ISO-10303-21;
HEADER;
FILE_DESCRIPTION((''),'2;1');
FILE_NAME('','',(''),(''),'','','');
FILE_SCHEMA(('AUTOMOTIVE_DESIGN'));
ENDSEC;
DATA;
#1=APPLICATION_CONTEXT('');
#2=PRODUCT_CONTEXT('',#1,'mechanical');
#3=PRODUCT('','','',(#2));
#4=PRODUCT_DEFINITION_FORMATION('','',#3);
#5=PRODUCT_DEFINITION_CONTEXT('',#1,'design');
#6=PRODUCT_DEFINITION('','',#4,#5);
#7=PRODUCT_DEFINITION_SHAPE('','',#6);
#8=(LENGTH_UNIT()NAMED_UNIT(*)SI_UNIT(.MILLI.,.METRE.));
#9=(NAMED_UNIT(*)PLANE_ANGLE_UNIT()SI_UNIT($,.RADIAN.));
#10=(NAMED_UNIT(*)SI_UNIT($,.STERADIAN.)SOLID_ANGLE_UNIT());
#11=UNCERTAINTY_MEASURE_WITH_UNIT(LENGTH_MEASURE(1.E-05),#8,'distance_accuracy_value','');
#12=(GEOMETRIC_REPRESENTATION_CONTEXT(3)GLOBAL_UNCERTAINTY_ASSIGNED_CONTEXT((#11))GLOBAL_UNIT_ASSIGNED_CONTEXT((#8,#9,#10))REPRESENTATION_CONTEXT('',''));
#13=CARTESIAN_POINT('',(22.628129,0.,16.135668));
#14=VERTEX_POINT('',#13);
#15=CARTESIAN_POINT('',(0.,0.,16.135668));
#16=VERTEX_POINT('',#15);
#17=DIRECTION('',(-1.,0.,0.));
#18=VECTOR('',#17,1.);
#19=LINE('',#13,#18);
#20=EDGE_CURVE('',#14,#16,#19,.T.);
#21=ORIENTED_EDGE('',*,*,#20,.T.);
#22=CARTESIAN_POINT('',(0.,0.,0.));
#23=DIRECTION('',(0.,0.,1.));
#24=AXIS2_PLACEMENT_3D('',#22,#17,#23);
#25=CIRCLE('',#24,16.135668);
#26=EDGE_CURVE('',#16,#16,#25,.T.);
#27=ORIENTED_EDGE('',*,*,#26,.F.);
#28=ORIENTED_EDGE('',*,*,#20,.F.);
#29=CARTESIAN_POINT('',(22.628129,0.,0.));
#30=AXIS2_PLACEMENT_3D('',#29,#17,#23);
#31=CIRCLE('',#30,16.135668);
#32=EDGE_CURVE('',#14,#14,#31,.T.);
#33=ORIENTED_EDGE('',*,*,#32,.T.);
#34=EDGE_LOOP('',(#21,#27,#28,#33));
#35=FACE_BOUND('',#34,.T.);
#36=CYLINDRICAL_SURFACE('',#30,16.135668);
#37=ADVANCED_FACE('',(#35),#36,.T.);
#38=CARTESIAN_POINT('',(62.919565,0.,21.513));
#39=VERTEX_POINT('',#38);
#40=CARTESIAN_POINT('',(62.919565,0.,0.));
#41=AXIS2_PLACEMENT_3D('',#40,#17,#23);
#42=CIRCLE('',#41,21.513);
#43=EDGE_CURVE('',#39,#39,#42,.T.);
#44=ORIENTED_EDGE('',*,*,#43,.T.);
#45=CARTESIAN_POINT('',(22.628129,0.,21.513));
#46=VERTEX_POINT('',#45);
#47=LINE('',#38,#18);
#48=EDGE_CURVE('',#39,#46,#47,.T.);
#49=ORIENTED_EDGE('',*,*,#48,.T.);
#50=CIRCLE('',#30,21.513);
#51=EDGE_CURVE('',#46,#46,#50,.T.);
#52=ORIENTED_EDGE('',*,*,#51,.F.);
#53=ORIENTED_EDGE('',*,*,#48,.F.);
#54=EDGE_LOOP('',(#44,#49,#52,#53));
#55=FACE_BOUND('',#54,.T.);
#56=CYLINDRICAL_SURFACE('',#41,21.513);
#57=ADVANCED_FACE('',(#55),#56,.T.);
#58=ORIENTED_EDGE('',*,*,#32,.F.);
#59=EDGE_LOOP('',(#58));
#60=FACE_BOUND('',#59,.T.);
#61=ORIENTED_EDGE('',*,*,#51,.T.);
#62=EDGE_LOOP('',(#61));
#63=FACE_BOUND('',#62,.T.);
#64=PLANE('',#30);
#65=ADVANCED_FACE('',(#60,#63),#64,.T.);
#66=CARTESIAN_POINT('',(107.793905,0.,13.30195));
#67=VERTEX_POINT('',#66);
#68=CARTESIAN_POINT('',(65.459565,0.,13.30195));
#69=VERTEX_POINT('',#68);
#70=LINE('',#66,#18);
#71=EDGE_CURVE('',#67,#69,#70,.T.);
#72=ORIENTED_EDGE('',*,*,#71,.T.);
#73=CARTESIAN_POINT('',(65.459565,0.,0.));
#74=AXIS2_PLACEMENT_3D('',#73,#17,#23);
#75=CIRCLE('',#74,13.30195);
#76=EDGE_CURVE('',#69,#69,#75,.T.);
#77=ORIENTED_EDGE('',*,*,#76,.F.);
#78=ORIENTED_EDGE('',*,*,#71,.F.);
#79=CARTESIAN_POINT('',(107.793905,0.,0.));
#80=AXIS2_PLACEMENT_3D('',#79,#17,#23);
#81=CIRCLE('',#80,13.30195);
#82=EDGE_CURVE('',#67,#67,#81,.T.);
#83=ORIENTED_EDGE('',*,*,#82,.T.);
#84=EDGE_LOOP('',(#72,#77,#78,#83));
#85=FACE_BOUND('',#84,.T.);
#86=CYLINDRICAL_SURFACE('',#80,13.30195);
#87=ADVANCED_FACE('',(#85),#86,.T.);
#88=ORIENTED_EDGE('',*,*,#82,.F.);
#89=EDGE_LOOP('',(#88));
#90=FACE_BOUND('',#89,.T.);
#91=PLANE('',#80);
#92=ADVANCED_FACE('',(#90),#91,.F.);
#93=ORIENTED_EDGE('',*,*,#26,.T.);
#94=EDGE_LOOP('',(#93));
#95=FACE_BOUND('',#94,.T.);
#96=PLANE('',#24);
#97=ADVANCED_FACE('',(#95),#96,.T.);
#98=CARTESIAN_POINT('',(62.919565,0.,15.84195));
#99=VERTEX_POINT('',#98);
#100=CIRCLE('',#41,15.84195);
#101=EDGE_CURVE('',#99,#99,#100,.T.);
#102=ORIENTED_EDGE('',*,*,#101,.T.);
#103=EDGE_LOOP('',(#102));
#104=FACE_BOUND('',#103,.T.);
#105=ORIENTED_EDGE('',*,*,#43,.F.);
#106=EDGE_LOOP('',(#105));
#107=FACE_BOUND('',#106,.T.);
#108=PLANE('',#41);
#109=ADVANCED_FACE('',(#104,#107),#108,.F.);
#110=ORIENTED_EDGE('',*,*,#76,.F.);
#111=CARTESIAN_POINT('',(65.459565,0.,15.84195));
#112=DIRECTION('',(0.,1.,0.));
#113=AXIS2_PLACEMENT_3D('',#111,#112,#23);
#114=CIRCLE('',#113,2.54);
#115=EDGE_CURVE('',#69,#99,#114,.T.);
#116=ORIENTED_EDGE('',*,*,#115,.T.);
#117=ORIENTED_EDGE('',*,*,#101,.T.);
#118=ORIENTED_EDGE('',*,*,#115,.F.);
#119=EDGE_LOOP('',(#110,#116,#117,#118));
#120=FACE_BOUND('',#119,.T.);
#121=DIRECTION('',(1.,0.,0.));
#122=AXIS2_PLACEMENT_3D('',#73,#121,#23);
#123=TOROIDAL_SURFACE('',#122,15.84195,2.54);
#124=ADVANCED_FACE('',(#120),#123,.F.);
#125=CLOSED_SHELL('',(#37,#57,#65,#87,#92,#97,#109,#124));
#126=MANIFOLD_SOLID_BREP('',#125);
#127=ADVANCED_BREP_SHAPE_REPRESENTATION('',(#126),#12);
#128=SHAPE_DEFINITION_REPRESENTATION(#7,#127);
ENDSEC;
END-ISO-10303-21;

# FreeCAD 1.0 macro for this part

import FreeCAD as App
import Part
import Sketcher
Q = App.Units.Quantity


def edges_at(feature, points):
    """Names of the edges that pass closest to the given points."""
    edges = feature.Shape.Edges
    near = lambda p: min(range(len(edges)), key=lambda i: edges[i].distToShape(Part.Vertex(*p))[0])
    return sorted({f"Edge{near(p) + 1}" for p in points})


def add_polygon(sketch, points):
    """Adds a closed chain of lines whose ends are joined by coincident constraints."""
    first, n = sketch.GeometryCount, len(points)
    for a, b in zip(points, points[1:] + points[:1]):
        sketch.addGeometry(Part.LineSegment(App.Vector(*a, 0), App.Vector(*b, 0)), False)
    for i in range(n):
        sketch.addConstraint(Sketcher.Constraint("Coincident", first + i, 2, first + (i + 1) % n, 1))

doc = App.newDocument("Part")
params = doc.addObject("Spreadsheet::Sheet", "Params")
for row, (alias, value) in enumerate([
    ("revolution_angle", "360 deg"),
    ("fillet_radius", "0.1 in"),
], start=1):
    params.set(f"A{row}", alias)
    params.set(f"B{row}", "=" + value)
    params.setAlias(f"B{row}", alias)

body = doc.addObject("PartDesign::Body", "Body")

sketch1 = body.newObject("Sketcher::SketchObject", "Sketch")
sketch1.AttachmentSupport = (doc.getObject("XZ_Plane"), [""])
sketch1.MapMode = "FlatFace"
add_polygon(sketch1, [(0, 16), (0, 0), (108, 0), (108, 13), (63, 13), (63, 22), (23, 22), (23, 16)])
sketch1.addConstraint(Sketcher.Constraint("Vertical", 0))
sketch1.addConstraint(Sketcher.Constraint("Horizontal", 1))
sketch1.addConstraint(Sketcher.Constraint("Vertical", 2))
sketch1.addConstraint(Sketcher.Constraint("Horizontal", 3))
sketch1.addConstraint(Sketcher.Constraint("Vertical", 4))
sketch1.addConstraint(Sketcher.Constraint("Horizontal", 5))
sketch1.addConstraint(Sketcher.Constraint("Vertical", 6))
sketch1.addConstraint(Sketcher.Constraint("Horizontal", 7))
sketch1.addConstraint(Sketcher.Constraint("Coincident", 0, 2, -1, 1))
sketch1.addConstraint(Sketcher.Constraint("DistanceX", 3, 2, 3, 1, Q("44.87434 mm")))
sketch1.addConstraint(Sketcher.Constraint("DistanceX", 7, 2, 7, 1, Q("22.628129 mm")))
sketch1.addConstraint(Sketcher.Constraint("DistanceY", 2, 1, 2, 2, Q("13.30195 mm")))
sketch1.addConstraint(Sketcher.Constraint("DistanceY", 4, 1, 4, 2, Q("8.21105 mm")))
sketch1.addConstraint(Sketcher.Constraint("DistanceX", 1, 1, 1, 2, Q("107.793905 mm")))
sketch1.addConstraint(Sketcher.Constraint("DistanceY", 0, 2, 0, 1, Q("16.135668 mm")))
revolution = body.newObject("PartDesign::Revolution", "Revolution")
revolution.Profile = sketch1
revolution.ReferenceAxis = (sketch1, ["H_Axis"])
revolution.setExpression("Angle", "Params.revolution_angle")
doc.recompute()

fillet = body.newObject("PartDesign::Fillet", "Fillet")
fillet.Base = (revolution, edges_at(revolution, [(62.92, 0, -13.302)]))
fillet.setExpression("Radius", "Params.fillet_radius")

doc.recompute()
